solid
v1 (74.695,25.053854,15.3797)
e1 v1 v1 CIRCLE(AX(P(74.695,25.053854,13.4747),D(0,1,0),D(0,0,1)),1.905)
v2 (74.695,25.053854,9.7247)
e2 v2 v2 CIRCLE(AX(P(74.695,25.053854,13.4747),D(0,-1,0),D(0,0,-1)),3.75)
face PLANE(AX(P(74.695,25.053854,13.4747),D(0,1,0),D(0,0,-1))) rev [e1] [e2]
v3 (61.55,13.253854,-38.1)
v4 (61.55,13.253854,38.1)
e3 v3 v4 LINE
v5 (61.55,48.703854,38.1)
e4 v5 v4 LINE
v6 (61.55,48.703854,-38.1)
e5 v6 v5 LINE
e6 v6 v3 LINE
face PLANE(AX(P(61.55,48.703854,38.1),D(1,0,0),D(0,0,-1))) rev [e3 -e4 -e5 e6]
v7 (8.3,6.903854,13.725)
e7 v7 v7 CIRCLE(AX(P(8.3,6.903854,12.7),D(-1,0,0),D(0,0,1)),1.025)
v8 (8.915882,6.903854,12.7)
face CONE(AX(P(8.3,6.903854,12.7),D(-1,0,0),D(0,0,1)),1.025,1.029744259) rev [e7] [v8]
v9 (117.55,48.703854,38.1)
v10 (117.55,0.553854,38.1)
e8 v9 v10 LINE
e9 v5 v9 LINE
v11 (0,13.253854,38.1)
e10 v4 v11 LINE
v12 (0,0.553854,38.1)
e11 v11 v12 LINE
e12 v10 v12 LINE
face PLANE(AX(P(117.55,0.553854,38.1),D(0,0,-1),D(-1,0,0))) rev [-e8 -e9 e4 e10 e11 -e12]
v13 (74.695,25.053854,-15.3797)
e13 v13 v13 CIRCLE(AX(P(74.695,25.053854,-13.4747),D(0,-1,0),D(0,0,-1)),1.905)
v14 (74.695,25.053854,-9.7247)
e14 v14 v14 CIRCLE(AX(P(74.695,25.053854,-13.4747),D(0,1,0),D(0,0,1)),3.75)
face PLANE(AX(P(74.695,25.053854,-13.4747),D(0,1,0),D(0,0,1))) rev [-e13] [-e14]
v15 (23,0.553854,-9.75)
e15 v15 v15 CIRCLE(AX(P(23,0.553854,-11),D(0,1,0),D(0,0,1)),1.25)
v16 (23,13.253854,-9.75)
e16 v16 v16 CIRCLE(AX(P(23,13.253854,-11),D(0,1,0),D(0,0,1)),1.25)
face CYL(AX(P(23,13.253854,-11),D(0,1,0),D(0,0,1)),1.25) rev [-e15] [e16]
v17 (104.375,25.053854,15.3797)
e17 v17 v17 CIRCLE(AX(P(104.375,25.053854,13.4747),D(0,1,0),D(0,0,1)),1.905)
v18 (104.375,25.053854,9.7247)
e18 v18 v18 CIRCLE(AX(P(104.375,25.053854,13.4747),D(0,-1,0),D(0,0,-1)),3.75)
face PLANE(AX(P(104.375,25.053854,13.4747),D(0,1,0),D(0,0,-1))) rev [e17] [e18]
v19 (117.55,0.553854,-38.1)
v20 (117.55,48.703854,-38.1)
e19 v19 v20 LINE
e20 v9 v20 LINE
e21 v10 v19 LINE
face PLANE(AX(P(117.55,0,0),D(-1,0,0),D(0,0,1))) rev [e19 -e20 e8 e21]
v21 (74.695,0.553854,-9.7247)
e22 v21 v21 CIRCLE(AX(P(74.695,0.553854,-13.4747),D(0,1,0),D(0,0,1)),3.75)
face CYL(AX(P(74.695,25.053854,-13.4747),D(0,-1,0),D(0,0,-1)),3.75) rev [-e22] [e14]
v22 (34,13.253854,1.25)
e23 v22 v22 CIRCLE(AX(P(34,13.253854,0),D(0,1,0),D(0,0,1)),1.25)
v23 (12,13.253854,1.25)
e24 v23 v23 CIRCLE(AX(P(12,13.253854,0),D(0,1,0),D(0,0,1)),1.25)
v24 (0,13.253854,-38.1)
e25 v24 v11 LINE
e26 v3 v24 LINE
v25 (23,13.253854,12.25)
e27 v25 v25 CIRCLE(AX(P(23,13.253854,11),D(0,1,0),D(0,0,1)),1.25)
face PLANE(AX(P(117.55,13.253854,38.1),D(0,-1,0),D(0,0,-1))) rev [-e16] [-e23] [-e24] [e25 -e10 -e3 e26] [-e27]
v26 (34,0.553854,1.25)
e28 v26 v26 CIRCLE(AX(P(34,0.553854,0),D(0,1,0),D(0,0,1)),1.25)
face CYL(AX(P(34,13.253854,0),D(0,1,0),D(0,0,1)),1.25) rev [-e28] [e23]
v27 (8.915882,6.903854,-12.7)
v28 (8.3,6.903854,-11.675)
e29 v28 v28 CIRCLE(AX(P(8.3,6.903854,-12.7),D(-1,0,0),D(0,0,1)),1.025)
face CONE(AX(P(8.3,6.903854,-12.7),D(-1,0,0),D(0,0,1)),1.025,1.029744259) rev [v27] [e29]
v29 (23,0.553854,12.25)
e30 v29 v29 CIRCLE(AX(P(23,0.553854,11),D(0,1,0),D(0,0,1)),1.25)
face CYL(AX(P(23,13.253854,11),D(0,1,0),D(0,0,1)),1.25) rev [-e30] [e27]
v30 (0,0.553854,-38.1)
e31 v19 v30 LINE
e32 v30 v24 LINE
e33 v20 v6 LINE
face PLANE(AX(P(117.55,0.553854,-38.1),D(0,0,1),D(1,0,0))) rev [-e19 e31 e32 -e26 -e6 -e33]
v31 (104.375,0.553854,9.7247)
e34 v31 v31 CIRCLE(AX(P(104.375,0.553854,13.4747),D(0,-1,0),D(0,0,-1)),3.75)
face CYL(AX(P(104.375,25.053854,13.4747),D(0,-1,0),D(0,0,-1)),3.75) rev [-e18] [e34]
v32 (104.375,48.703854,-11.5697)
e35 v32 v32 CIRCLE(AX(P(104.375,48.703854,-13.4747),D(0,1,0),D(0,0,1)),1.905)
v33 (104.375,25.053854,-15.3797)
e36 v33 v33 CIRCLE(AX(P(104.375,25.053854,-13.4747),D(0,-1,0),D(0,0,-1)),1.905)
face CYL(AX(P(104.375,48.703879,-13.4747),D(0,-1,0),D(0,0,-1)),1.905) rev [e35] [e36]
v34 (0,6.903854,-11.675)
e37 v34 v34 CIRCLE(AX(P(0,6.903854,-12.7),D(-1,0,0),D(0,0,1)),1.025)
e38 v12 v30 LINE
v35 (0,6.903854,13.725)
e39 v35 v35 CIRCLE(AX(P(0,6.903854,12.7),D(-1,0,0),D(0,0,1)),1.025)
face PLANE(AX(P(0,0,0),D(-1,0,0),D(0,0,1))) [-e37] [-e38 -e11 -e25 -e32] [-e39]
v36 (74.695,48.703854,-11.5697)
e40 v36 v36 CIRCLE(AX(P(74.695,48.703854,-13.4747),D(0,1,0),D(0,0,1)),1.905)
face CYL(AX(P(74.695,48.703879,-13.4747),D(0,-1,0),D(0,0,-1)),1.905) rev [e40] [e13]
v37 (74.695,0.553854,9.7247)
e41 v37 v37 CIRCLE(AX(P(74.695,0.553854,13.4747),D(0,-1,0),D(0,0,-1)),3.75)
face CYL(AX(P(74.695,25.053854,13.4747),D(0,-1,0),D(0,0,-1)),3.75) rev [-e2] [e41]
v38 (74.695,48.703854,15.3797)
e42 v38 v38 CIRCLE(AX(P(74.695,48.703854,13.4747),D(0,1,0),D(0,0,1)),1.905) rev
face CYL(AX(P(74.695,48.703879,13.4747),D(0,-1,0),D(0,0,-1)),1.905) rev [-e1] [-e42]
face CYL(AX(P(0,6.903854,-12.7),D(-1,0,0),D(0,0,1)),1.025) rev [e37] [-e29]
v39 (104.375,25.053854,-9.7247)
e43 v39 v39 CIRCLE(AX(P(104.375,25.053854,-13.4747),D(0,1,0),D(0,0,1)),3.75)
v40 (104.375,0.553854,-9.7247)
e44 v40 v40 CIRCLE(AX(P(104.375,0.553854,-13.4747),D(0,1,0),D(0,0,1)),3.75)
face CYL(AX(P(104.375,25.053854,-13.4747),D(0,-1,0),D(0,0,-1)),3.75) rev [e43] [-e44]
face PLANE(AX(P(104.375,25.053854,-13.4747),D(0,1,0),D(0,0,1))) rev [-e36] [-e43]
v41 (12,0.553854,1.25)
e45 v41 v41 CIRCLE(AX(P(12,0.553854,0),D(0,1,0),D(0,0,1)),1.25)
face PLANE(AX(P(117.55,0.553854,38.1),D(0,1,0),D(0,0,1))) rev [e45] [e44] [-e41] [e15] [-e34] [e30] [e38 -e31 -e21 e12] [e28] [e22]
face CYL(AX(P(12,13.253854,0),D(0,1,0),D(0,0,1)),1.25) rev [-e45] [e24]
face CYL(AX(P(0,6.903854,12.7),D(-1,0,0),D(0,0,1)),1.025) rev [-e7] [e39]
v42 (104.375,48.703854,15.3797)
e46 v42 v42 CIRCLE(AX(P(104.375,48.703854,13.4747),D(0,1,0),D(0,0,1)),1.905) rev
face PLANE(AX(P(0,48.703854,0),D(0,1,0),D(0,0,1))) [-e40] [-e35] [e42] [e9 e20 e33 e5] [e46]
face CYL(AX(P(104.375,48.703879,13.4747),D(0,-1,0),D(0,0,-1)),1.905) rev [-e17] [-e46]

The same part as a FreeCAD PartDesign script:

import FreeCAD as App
import Part
import Sketcher
from FreeCAD import Vector
Q = App.Units.Quantity


def add_polygon(sketch, points):
    """Adds a closed chain of lines whose ends are joined by coincident constraints."""
    first, n = sketch.GeometryCount, len(points)
    for a, b in zip(points, points[1:] + points[:1]):
        sketch.addGeometry(Part.LineSegment(App.Vector(*a, 0), App.Vector(*b, 0)), False)
    for i in range(n):
        sketch.addConstraint(Sketcher.Constraint("Coincident", first + i, 2, first + (i + 1) % n, 1))

doc = App.newDocument("Part")
body = doc.addObject("PartDesign::Body", "Body")

sketch1 = body.newObject("Sketcher::SketchObject", "Sketch")
sketch1.AttachmentSupport = (doc.getObject("YZ_Plane"), [""])
sketch1.MapMode = "FlatFace"
add_polygon(sketch1, [(13, 38), (1, 38), (1, -38), (13, -38)])
sketch1.addConstraint([
    Sketcher.Constraint("Horizontal", 0),
    Sketcher.Constraint("Vertical", 1),
    Sketcher.Constraint("Horizontal", 2),
    Sketcher.Constraint("Vertical", 3),
    Sketcher.Constraint("DistanceX", 0, 2, 0, 1, Q("12.7 mm")),
    Sketcher.Constraint("DistanceY", 1, 2, 1, 1, Q("76.2 mm")),
    Sketcher.Constraint("DistanceY", -1, 1, 0, 2, Q("38.1 mm")),
    Sketcher.Constraint("DistanceX", -1, 1, 0, 2, Q("0.553854 mm")),
])
pad1 = body.newObject("PartDesign::Pad", "Pad")
pad1.Profile = sketch1
pad1.Length = 117.55

sketch2 = body.newObject("Sketcher::SketchObject", "Sketch001")
sketch2.AttachmentSupport = (doc.getObject("XZ_Plane"), [""])
sketch2.MapMode = "FlatFace"
sketch2.AttachmentOffset = App.Placement(Vector(0, 0, -13.253854), App.Rotation())
sketch2.addGeometry([
    Part.Circle(Vector(12, 0, 0), Vector(0, 0, 1), 1.2),
    Part.Circle(Vector(34, 0, 0), Vector(0, 0, 1), 1.2),
    Part.Circle(Vector(23, 11, 0), Vector(0, 0, 1), 1.2),
    Part.Circle(Vector(23, -11, 0), Vector(0, 0, 1), 1.2),
], False)
sketch2.addConstraint([
    Sketcher.Constraint("Equal", 0, 1),
    Sketcher.Constraint("Equal", 1, 2),
    Sketcher.Constraint("Equal", 2, 3),
    Sketcher.Constraint("Symmetric", 2, 3, 3, 3, -1),
    Sketcher.Constraint("PointOnObject", 0, 3, -1),
    Sketcher.Constraint("PointOnObject", 1, 3, -1),
    Sketcher.Constraint("Diameter", 0, Q("2.5 mm")),
    Sketcher.Constraint("DistanceX", -1, 1, 0, 3, Q("12 mm")),
    Sketcher.Constraint("DistanceX", -1, 1, 1, 3, Q("34 mm")),
    Sketcher.Constraint("DistanceX", -1, 1, 2, 3, Q("23 mm")),
    Sketcher.Constraint("DistanceY", -1, 1, 2, 3, Q("11 mm")),
])
doc.recompute()
hole = body.newObject("PartDesign::Hole", "Hole")
hole.Profile = sketch2
hole.ThreadType = "None"
hole.Diameter = 2.5
hole.DepthType = "ThroughAll"
hole.Reversed = True

sketch3 = body.newObject("Sketcher::SketchObject", "Sketch002")
sketch3.AttachmentSupport = (doc.getObject("XZ_Plane"), [""])
sketch3.MapMode = "FlatFace"
sketch3.AttachmentOffset = App.Placement(Vector(0, 0, -13.253854), App.Rotation())
add_polygon(sketch3, [(62, -38), (62, 38), (118, 38), (118, -38)])
sketch3.addConstraint([
    Sketcher.Constraint("Vertical", 0),
    Sketcher.Constraint("Horizontal", 1),
    Sketcher.Constraint("Vertical", 2),
    Sketcher.Constraint("Horizontal", 3),
    Sketcher.Constraint("DistanceX", 1, 1, 1, 2, Q("56 mm")),
    Sketcher.Constraint("DistanceY", 0, 1, 0, 2, Q("76.2 mm")),
    Sketcher.Constraint("DistanceY", -1, 1, 0, 2, Q("38.1 mm")),
    Sketcher.Constraint("DistanceX", -1, 1, 0, 2, Q("61.55 mm")),
])
pad2 = body.newObject("PartDesign::Pad", "Pad001")
pad2.Profile = sketch3
pad2.Length = 35.45
pad2.Reversed = True

sketch4 = body.newObject("Sketcher::SketchObject", "Sketch003")
sketch4.AttachmentSupport = (doc.getObject("XZ_Plane"), [""])
sketch4.MapMode = "FlatFace"
sketch4.AttachmentOffset = App.Placement(Vector(0, 0, -0.553854), App.Rotation())
sketch4.addGeometry([
    Part.Circle(Vector(104.4, -13.5, 0), Vector(0, 0, 1), 3.8),
    Part.Circle(Vector(74.7, -13.5, 0), Vector(0, 0, 1), 3.8),
], False)
sketch4.addConstraint([
    Sketcher.Constraint("Equal", 0, 1),
    Sketcher.Constraint("Horizontal", 0, 3, 1, 3),
    Sketcher.Constraint("Diameter", 0, Q("7.5 mm")),
    Sketcher.Constraint("DistanceX", 1, 3, 0, 3, Q("29.68 mm")),
    Sketcher.Constraint("DistanceX", -1, 1, 0, 3, Q("104.375 mm")),
    Sketcher.Constraint("DistanceY", 0, 3, -1, 1, Q("13.4747 mm")),
])
pocket1 = body.newObject("PartDesign::Pocket", "Pocket")
pocket1.Profile = sketch4
pocket1.Length = 24.5

sketch5 = body.newObject("Sketcher::SketchObject", "Sketch004")
sketch5.AttachmentSupport = (doc.getObject("XZ_Plane"), [""])
sketch5.MapMode = "FlatFace"
sketch5.AttachmentOffset = App.Placement(Vector(0, 0, -25.053854), App.Rotation())
sketch5.addGeometry([
    Part.Circle(Vector(104.4, -13.5, 0), Vector(0, 0, 1), 1.9),
    Part.Circle(Vector(74.7, -13.5, 0), Vector(0, 0, 1), 1.9),
], False)
sketch5.addConstraint([
    Sketcher.Constraint("Equal", 0, 1),
    Sketcher.Constraint("Horizontal", 0, 3, 1, 3),
    Sketcher.Constraint("Diameter", 0, Q("3.81 mm")),
    Sketcher.Constraint("DistanceX", 1, 3, 0, 3, Q("29.68 mm")),
    Sketcher.Constraint("DistanceX", -1, 1, 0, 3, Q("104.375 mm")),
    Sketcher.Constraint("DistanceY", 0, 3, -1, 1, Q("13.4747 mm")),
])
pocket2 = body.newObject("PartDesign::Pocket", "Pocket001")
pocket2.Profile = sketch5
pocket2.Type = "ThroughAll"
doc.recompute()

mirrored = body.newObject("PartDesign::Mirrored", "Mirrored")
mirrored.Originals = [pocket1, pocket2]
mirrored.MirrorPlane = (doc.getObject("XY_Plane"), [""])
body.Tip = mirrored

sketch6 = body.newObject("Sketcher::SketchObject", "Sketch005")
sketch6.AttachmentSupport = (doc.getObject("YZ_Plane"), [""])
sketch6.MapMode = "FlatFace"
sketch6.addGeometry([
    Part.Circle(Vector(6.9, -12.7, 0), Vector(0, 0, 1), 1),
    Part.Circle(Vector(6.9, 12.7, 0), Vector(0, 0, 1), 1),
], False)
sketch6.addConstraint([
    Sketcher.Constraint("Equal", 0, 1),
    Sketcher.Constraint("Symmetric", 0, 3, 1, 3, -1),
    Sketcher.Constraint("Diameter", 0, Q("2.05 mm")),
    Sketcher.Constraint("DistanceY", 0, 3, -1, 1, Q("12.7 mm")),
    Sketcher.Constraint("DistanceX", -1, 1, 0, 3, Q("6.903854 mm")),
])
doc.recompute()
hole2 = body.newObject("PartDesign::Hole", "Hole001")
hole2.Profile = sketch6
hole2.ThreadType = "None"
hole2.Diameter = 2.05
hole2.DepthType = "Dimension"
hole2.Depth = 8.3
hole2.DrillPoint = "Angled"
hole2.DrillPointAngle = 118
hole2.Reversed = True

doc.recompute()
